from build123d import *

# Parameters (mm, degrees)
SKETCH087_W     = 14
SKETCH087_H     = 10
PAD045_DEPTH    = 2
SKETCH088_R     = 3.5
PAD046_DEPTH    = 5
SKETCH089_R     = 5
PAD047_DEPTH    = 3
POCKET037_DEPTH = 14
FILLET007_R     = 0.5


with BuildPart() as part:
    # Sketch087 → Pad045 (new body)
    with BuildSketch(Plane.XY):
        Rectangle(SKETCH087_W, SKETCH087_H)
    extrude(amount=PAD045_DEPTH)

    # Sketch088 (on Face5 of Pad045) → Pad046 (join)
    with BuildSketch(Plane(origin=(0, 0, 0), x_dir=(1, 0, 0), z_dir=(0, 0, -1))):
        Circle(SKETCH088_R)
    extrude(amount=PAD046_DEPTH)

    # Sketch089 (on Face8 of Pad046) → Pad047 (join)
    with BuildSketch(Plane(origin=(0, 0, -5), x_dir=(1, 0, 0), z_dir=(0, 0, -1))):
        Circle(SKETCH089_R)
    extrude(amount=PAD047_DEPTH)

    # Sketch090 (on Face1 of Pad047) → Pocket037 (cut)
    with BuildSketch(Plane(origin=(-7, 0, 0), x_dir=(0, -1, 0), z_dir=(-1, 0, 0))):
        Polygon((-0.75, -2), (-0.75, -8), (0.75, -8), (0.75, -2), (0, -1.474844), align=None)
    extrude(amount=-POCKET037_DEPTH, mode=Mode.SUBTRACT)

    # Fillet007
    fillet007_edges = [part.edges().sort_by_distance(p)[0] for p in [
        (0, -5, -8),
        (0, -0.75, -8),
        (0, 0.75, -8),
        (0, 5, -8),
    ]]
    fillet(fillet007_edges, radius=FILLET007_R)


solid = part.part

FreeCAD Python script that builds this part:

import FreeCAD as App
import Part
import Sketcher
Q = App.Units.Quantity


def edges_at(feature, points):
    """Names of the edges that pass closest to the given points."""
    edges = feature.Shape.Edges
    near = lambda p: min(range(len(edges)), key=lambda i: edges[i].distToShape(Part.Vertex(*p))[0])
    return sorted({f"Edge{near(p) + 1}" for p in points})

doc = App.newDocument("Part")
body = doc.addObject("PartDesign::Body", "Body")

# Sketch on XY plane
sketch1 = body.newObject("Sketcher::SketchObject", "Sketch")
sketch1.AttachmentSupport = (doc.getObject("XY_Plane"), [""])
sketch1.MapMode = "FlatFace"
sketch1.addGeometry(Part.LineSegment(App.Vector(-7, 5, 0), App.Vector(-7, -5, 0)), False)
sketch1.addGeometry(Part.LineSegment(App.Vector(-7, -5, 0), App.Vector(7, -5, 0)), False)
sketch1.addGeometry(Part.LineSegment(App.Vector(7, -5, 0), App.Vector(7, 5, 0)), False)
sketch1.addGeometry(Part.LineSegment(App.Vector(7, 5, 0), App.Vector(-7, 5, 0)), False)
sketch1.addConstraint(Sketcher.Constraint("Coincident", 0, 2, 1, 1))
sketch1.addConstraint(Sketcher.Constraint("Coincident", 1, 2, 2, 1))
sketch1.addConstraint(Sketcher.Constraint("Coincident", 2, 2, 3, 1))
sketch1.addConstraint(Sketcher.Constraint("Coincident", 3, 2, 0, 1))
sketch1.addConstraint(Sketcher.Constraint("Vertical", 0))
sketch1.addConstraint(Sketcher.Constraint("Horizontal", 1))
sketch1.addConstraint(Sketcher.Constraint("Vertical", 2))
sketch1.addConstraint(Sketcher.Constraint("Horizontal", 3))
sketch1.addConstraint(Sketcher.Constraint("Symmetric", 0, 2, 2, 2, -1, 1))
sketch1.addConstraint(Sketcher.Constraint("DistanceX", 1, 1, 1, 2, Q("14 mm")))
sketch1.addConstraint(Sketcher.Constraint("DistanceY", 0, 2, 0, 1, Q("10 mm")))
pad1 = body.newObject("PartDesign::Pad", "Pad")
pad1.Profile = sketch1
pad1.Length = 2

# Sketch on XY plane
sketch2 = body.newObject("Sketcher::SketchObject", "Sketch001")
sketch2.AttachmentSupport = (doc.getObject("XY_Plane"), [""])
sketch2.MapMode = "FlatFace"
sketch2.addGeometry(Part.Circle(App.Vector(0, 0, 0), App.Vector(0, 0, 1), 3.5), False)
sketch2.addConstraint(Sketcher.Constraint("Coincident", 0, 3, -1, 1))
sketch2.addConstraint(Sketcher.Constraint("Diameter", 0, Q("7 mm")))
pad2 = body.newObject("PartDesign::Pad", "Pad001")
pad2.Profile = sketch2
pad2.Length = 5
pad2.Reversed = True

# Sketch on XY plane
sketch3 = body.newObject("Sketcher::SketchObject", "Sketch002")
sketch3.AttachmentSupport = (doc.getObject("XY_Plane"), [""])
sketch3.MapMode = "FlatFace"
sketch3.AttachmentOffset = App.Placement(App.Vector(0, 0, -5), App.Rotation())
sketch3.addGeometry(Part.Circle(App.Vector(0, 0, 0), App.Vector(0, 0, 1), 5), False)
sketch3.addConstraint(Sketcher.Constraint("Coincident", 0, 3, -1, 1))
sketch3.addConstraint(Sketcher.Constraint("Diameter", 0, Q("10 mm")))
pad3 = body.newObject("PartDesign::Pad", "Pad002")
pad3.Profile = sketch3
pad3.Length = 3
pad3.Reversed = True

# Sketch on YZ plane
sketch4 = body.newObject("Sketcher::SketchObject", "Sketch003")
sketch4.AttachmentSupport = (doc.getObject("YZ_Plane"), [""])
sketch4.MapMode = "FlatFace"
sketch4.AttachmentOffset = App.Placement(App.Vector(0, 0, -7), App.Rotation())
sketch4.addGeometry(Part.LineSegment(App.Vector(0.75, -2, 0), App.Vector(0.75, -8, 0)), False)
sketch4.addGeometry(Part.LineSegment(App.Vector(0.75, -8, 0), App.Vector(-0.75, -8, 0)), False)
sketch4.addGeometry(Part.LineSegment(App.Vector(-0.75, -8, 0), App.Vector(-0.75, -2, 0)), False)
sketch4.addGeometry(Part.LineSegment(App.Vector(-0.75, -2, 0), App.Vector(0, -1.474844, 0)), False)
sketch4.addGeometry(Part.LineSegment(App.Vector(0, -1.474844, 0), App.Vector(0.75, -2, 0)), False)
sketch4.addConstraint(Sketcher.Constraint("Coincident", 0, 2, 1, 1))
sketch4.addConstraint(Sketcher.Constraint("Coincident", 1, 2, 2, 1))
sketch4.addConstraint(Sketcher.Constraint("Coincident", 2, 2, 3, 1))
sketch4.addConstraint(Sketcher.Constraint("Coincident", 3, 2, 4, 1))
sketch4.addConstraint(Sketcher.Constraint("Coincident", 4, 2, 0, 1))
sketch4.addConstraint(Sketcher.Constraint("Vertical", 0))
sketch4.addConstraint(Sketcher.Constraint("Horizontal", 1))
sketch4.addConstraint(Sketcher.Constraint("Vertical", 2))
sketch4.addConstraint(Sketcher.Constraint("Symmetric", 2, 2, 4, 2, -2))
sketch4.addConstraint(Sketcher.Constraint("PointOnObject", 3, 2, -2))
sketch4.addConstraint(Sketcher.Constraint("DistanceY", 0, 2, 0, 1, Q("6 mm")))
sketch4.addConstraint(Sketcher.Constraint("Angle", 3, Q("35.000018 deg")))
sketch4.addConstraint(Sketcher.Constraint("DistanceX", 1, 2, 1, 1, Q("1.5 mm")))
sketch4.addConstraint(Sketcher.Constraint("DistanceY", 0, 2, -1, 1, Q("8 mm")))
pocket1 = body.newObject("PartDesign::Pocket", "Pocket")
pocket1.Profile = sketch4
pocket1.Length = 14
pocket1.Reversed = True
doc.recompute()

fillet = body.newObject("PartDesign::Fillet", "Fillet")
fillet.Base = (pocket1, edges_at(pocket1, [
    (0, -5, -8),
    (0, -0.75, -8),
    (0, 0.75, -8),
    (0, 5, -8),
]))
fillet.Radius = 0.5

doc.recompute()
